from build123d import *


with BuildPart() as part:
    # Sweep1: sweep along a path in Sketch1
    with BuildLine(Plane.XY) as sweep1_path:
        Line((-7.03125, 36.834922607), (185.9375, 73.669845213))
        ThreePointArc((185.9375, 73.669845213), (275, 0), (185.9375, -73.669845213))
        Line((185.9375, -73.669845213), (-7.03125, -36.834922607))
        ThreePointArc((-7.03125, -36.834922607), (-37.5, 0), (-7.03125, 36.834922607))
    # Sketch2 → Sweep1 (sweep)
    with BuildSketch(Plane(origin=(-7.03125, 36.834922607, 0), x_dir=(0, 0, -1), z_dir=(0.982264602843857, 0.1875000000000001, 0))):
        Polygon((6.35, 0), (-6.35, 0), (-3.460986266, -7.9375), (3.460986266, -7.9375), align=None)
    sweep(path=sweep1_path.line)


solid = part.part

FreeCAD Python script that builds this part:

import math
import FreeCAD as App
import Part
import Sketcher

V = App.Vector
Q = App.Units.Quantity

doc = App.newDocument("Part")
body = doc.addObject("PartDesign::Body", "Body")

# Sketch on an angled plane
sketch1 = body.newObject("Sketcher::SketchObject", "Sketch")
sketch1.Placement = App.Placement(V(-7.03125, 36.834923, 0), App.Rotation(V(0, 0, -1), V(-0.1875, 0.982264603, 0), V(0.982264603, 0.1875, 0), "ZXY"))
sketch1.addGeometry(Part.LineSegment(V(6.35, 0, 0), V(-6.35, 0, 0)), False)
sketch1.addGeometry(Part.LineSegment(V(-6.35, 0, 0), V(-3.460986, -7.9375, 0)), False)
sketch1.addGeometry(Part.LineSegment(V(-3.460986, -7.9375, 0), V(3.460986, -7.9375, 0)), False)
sketch1.addGeometry(Part.LineSegment(V(3.460986, -7.9375, 0), V(6.35, 0, 0)), False)
sketch1.addConstraint(Sketcher.Constraint("Coincident", 0, 2, 1, 1))
sketch1.addConstraint(Sketcher.Constraint("Coincident", 1, 2, 2, 1))
sketch1.addConstraint(Sketcher.Constraint("Coincident", 2, 2, 3, 1))
sketch1.addConstraint(Sketcher.Constraint("Coincident", 3, 2, 0, 1))
sketch1.addConstraint(Sketcher.Constraint("Horizontal", 0))
sketch1.addConstraint(Sketcher.Constraint("Horizontal", 2))
sketch1.addConstraint(Sketcher.Constraint("Symmetric", 0, 2, 3, 2, -1, 1))
sketch1.addConstraint(Sketcher.Constraint("Equal", 1, 3))
sketch1.addConstraint(Sketcher.Constraint("Angle", 1, Q("-70 deg")))
sketch1.addConstraint(Sketcher.Constraint("DistanceX", 0, 2, 0, 1, 12.7))
sketch1.addConstraint(Sketcher.Constraint("DistanceY", 1, 2, -1, 1, 7.9375))

# Sketch on XY plane
sketch2 = body.newObject("Sketcher::SketchObject", "Sketch001")
sketch2.AttachmentSupport = (doc.getObject("XY_Plane"), [""])
sketch2.MapMode = "FlatFace"
sketch2.addGeometry(Part.LineSegment(V(-7.03125, 36.834923, 0), V(185.9375, 73.669845, 0)), False)
sketch2.addGeometry(Part.ArcOfCircle(Part.Circle(V(200, 0, 0), V(0, 0, 1), 75), math.radians(-100.806923), math.radians(100.806923)), False)
sketch2.addGeometry(Part.LineSegment(V(185.9375, -73.669845, 0), V(-7.03125, -36.834923, 0)), False)
sketch2.addGeometry(Part.ArcOfCircle(Part.Circle(V(0, 0, 0), V(0, 0, 1), 37.5), math.radians(100.806923), math.radians(259.193077)), False)
sketch2.addConstraint(Sketcher.Constraint("Tangent", 0, 2, 1, 2))
sketch2.addConstraint(Sketcher.Constraint("Tangent", 1, 1, 2, 1))
sketch2.addConstraint(Sketcher.Constraint("Tangent", 2, 2, 3, 2))
sketch2.addConstraint(Sketcher.Constraint("Tangent", 3, 1, 0, 1))
sketch2.addConstraint(Sketcher.Constraint("Coincident", 3, 3, -1, 1))
sketch2.addConstraint(Sketcher.Constraint("PointOnObject", 1, 3, -1))
sketch2.addConstraint(Sketcher.Constraint("Radius", 1, 75.0))
sketch2.addConstraint(Sketcher.Constraint("Radius", 3, 37.5))
sketch2.addConstraint(Sketcher.Constraint("DistanceX", -1, 1, 1, 3, 200.0))
doc.recompute()

additivepipe = body.newObject("PartDesign::AdditivePipe", "AdditivePipe")
additivepipe.Profile = sketch1
additivepipe.Spine = (sketch2, ["Edge1", "Edge2", "Edge3", "Edge4"])

doc.recompute()
